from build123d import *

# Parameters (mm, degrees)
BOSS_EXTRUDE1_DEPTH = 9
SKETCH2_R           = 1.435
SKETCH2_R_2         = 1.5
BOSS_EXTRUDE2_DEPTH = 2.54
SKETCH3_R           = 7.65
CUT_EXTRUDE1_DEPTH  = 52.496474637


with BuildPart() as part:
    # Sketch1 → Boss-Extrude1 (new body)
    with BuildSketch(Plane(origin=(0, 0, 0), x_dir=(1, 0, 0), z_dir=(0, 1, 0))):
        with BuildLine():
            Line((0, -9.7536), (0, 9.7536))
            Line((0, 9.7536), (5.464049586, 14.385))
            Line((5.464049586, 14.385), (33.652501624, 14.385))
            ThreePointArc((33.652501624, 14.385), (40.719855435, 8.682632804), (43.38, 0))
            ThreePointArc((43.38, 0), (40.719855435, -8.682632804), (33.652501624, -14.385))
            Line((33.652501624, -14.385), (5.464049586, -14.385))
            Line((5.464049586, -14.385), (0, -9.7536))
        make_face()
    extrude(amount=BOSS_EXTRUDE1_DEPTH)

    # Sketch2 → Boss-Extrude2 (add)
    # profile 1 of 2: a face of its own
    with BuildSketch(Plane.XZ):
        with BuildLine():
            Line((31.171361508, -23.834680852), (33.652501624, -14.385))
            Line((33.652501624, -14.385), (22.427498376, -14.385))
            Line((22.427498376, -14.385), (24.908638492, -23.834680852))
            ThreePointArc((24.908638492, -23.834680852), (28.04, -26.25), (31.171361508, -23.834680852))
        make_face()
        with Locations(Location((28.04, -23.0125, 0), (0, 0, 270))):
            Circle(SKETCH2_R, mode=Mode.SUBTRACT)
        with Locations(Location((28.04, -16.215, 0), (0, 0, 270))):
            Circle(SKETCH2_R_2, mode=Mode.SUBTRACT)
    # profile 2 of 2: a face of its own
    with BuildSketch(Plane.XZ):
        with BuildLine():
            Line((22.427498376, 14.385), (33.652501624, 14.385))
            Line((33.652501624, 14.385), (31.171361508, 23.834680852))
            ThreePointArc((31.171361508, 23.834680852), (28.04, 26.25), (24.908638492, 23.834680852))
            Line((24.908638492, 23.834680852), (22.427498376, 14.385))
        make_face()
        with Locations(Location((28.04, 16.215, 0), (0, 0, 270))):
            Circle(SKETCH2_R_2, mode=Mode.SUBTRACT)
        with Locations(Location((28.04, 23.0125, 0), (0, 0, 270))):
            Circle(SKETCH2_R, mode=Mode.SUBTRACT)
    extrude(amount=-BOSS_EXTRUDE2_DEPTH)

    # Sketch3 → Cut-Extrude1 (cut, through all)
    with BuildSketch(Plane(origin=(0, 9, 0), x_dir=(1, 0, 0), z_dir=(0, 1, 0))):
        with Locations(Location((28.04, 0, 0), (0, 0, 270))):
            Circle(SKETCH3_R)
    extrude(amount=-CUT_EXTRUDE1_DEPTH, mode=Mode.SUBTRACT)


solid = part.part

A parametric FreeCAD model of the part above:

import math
import FreeCAD as App
import Part
import Sketcher
from FreeCAD import Vector
Q = App.Units.Quantity

doc = App.newDocument("Part")
body = doc.addObject("PartDesign::Body", "Body")

# Sketch on XZ plane
sketch1 = body.newObject("Sketcher::SketchObject", "Sketch")
sketch1.AttachmentSupport = (doc.getObject("XZ_Plane"), [""])
sketch1.MapMode = "FlatFace"
sketch1.addGeometry(Part.LineSegment(Vector(0, -10, 0), Vector(0, 10, 0)), False)
sketch1.addGeometry(Part.LineSegment(Vector(0, 10, 0), Vector(5, 14, 0)), False)
sketch1.addGeometry(Part.LineSegment(Vector(5, 14, 0), Vector(34, 14, 0)), False)
sketch1.addGeometry(Part.ArcOfCircle(Part.Circle(Vector(28, 0, 0), Vector(0, 0, 1), 16), math.radians(0), math.radians(68)), False)
sketch1.addGeometry(Part.ArcOfCircle(Part.Circle(Vector(28, 0, 0), Vector(0, 0, 1), 16), math.radians(-68), math.radians(0)), False)
sketch1.addGeometry(Part.LineSegment(Vector(34, -14, 0), Vector(5, -14, 0)), False)
sketch1.addGeometry(Part.LineSegment(Vector(5, -14, 0), Vector(0, -10, 0)), False)
sketch1.addConstraint(Sketcher.Constraint("Coincident", 0, 2, 1, 1))
sketch1.addConstraint(Sketcher.Constraint("Coincident", 1, 2, 2, 1))
sketch1.addConstraint(Sketcher.Constraint("Coincident", 2, 2, 3, 2))
sketch1.addConstraint(Sketcher.Constraint("Tangent", 3, 1, 4, 2))
sketch1.addConstraint(Sketcher.Constraint("Coincident", 4, 1, 5, 1))
sketch1.addConstraint(Sketcher.Constraint("Coincident", 5, 2, 6, 1))
sketch1.addConstraint(Sketcher.Constraint("Coincident", 6, 2, 0, 1))
sketch1.addConstraint(Sketcher.Constraint("Vertical", 0))
sketch1.addConstraint(Sketcher.Constraint("Horizontal", 2))
sketch1.addConstraint(Sketcher.Constraint("Horizontal", 5))
sketch1.addConstraint(Sketcher.Constraint("Equal", 3, 4))
sketch1.addConstraint(Sketcher.Constraint("Symmetric", 0, 2, 6, 2, -1, 1))
sketch1.addConstraint(Sketcher.Constraint("Symmetric", 2, 2, 4, 1, -1))
sketch1.addConstraint(Sketcher.Constraint("PointOnObject", 3, 1, -1))
sketch1.addConstraint(Sketcher.Constraint("Vertical", 1, 2, 5, 2))
sketch1.addConstraint(Sketcher.Constraint("Radius", 3, Q("15.5 mm")))
sketch1.addConstraint(Sketcher.Constraint("DistanceX", -1, 1, 3, 3, Q("27.88 mm")))
sketch1.addConstraint(Sketcher.Constraint("DistanceY", 4, 1, 2, 2, Q("28.77 mm")))
sketch1.addConstraint(Sketcher.Constraint("DistanceY", 0, 1, 0, 2, Q("19.5072 mm")))
sketch1.addConstraint(Sketcher.Constraint("Distance", 1, Q("7.1628 mm")))
pad1 = body.newObject("PartDesign::Pad", "Pad")
pad1.Profile = sketch1
pad1.Length = 9
pad1.Reversed = True

# Sketch on XZ plane
sketch2 = body.newObject("Sketcher::SketchObject", "Sketch001")
sketch2.AttachmentSupport = (doc.getObject("XZ_Plane"), [""])
sketch2.MapMode = "FlatFace"
sketch2.addGeometry(Part.LineSegment(Vector(31.2, -23.8, 0), Vector(33.7, -14.4, 0)), False)
sketch2.addGeometry(Part.LineSegment(Vector(33.7, -14.4, 0), Vector(22.4, -14.4, 0)), False)
sketch2.addGeometry(Part.LineSegment(Vector(22.4, -14.4, 0), Vector(24.9, -23.8, 0)), False)
sketch2.addGeometry(Part.ArcOfCircle(Part.Circle(Vector(28, -23, 0), Vector(0, 0, 1), 3.2), math.radians(-165), math.radians(-15)), False)
sketch2.addGeometry(Part.Circle(Vector(28, -23, 0), Vector(0, 0, 1), 1.4), False)
sketch2.addGeometry(Part.Circle(Vector(28, -16.2, 0), Vector(0, 0, 1), 1.5), False)
sketch2.addGeometry(Part.LineSegment(Vector(22.4, 14.4, 0), Vector(33.7, 14.4, 0)), False)
sketch2.addGeometry(Part.LineSegment(Vector(33.7, 14.4, 0), Vector(31.2, 23.8, 0)), False)
sketch2.addGeometry(Part.ArcOfCircle(Part.Circle(Vector(28, 23, 0), Vector(0, 0, 1), 3.2), math.radians(15), math.radians(165)), False)
sketch2.addGeometry(Part.LineSegment(Vector(24.9, 23.8, 0), Vector(22.4, 14.4, 0)), False)
sketch2.addGeometry(Part.Circle(Vector(28, 16.2, 0), Vector(0, 0, 1), 1.5), False)
sketch2.addGeometry(Part.Circle(Vector(28, 23, 0), Vector(0, 0, 1), 1.4), False)
sketch2.addConstraint(Sketcher.Constraint("Coincident", 0, 2, 1, 1))
sketch2.addConstraint(Sketcher.Constraint("Coincident", 1, 2, 2, 1))
sketch2.addConstraint(Sketcher.Constraint("Tangent", 2, 2, 3, 1))
sketch2.addConstraint(Sketcher.Constraint("Tangent", 3, 2, 0, 1))
sketch2.addConstraint(Sketcher.Constraint("Coincident", 6, 2, 7, 1))
sketch2.addConstraint(Sketcher.Constraint("Tangent", 7, 2, 8, 1))
sketch2.addConstraint(Sketcher.Constraint("Tangent", 8, 2, 9, 1))
sketch2.addConstraint(Sketcher.Constraint("Coincident", 9, 2, 6, 1))
sketch2.addConstraint(Sketcher.Constraint("Horizontal", 1))
sketch2.addConstraint(Sketcher.Constraint("Horizontal", 6))
sketch2.addConstraint(Sketcher.Constraint("Coincident", 4, 3, 3, 3))
sketch2.addConstraint(Sketcher.Constraint("Coincident", 11, 3, 8, 3))
sketch2.addConstraint(Sketcher.Constraint("Equal", 3, 8))
sketch2.addConstraint(Sketcher.Constraint("Equal", 5, 10))
sketch2.addConstraint(Sketcher.Constraint("Equal", 4, 11))
sketch2.addConstraint(Sketcher.Constraint("Symmetric", 3, 3, 8, 3, -1))
sketch2.addConstraint(Sketcher.Constraint("Symmetric", 5, 3, 10, 3, -1))
sketch2.addConstraint(Sketcher.Constraint("Symmetric", 0, 2, 6, 2, -1))
sketch2.addConstraint(Sketcher.Constraint("Parallel", 2, 7))
sketch2.addConstraint(Sketcher.Constraint("Parallel", 0, 9))
sketch2.addConstraint(Sketcher.Constraint("Vertical", 4, 3, 5, 3))
sketch2.addConstraint(Sketcher.Constraint("Diameter", 5, Q("3 mm")))
sketch2.addConstraint(Sketcher.Constraint("Diameter", 4, Q("2.87 mm")))
sketch2.addConstraint(Sketcher.Constraint("Radius", 3, Q("3.2375 mm")))
sketch2.addConstraint(Sketcher.Constraint("DistanceY", 0, 2, 10, 3, Q("30.6 mm")))
sketch2.addConstraint(Sketcher.Constraint("DistanceX", -1, 1, 3, 3, Q("28.04 mm")))
sketch2.addConstraint(Sketcher.Constraint("DistanceY", 5, 3, 10, 3, Q("32.43 mm")))
sketch2.addConstraint(Sketcher.Constraint("DistanceY", 4, 3, 8, 3, Q("46.025 mm")))
sketch2.addConstraint(Sketcher.Constraint("DistanceX", -1, 1, 0, 2, Q("33.652502 mm")))
pad2 = body.newObject("PartDesign::Pad", "Pad001")
pad2.Profile = sketch2
pad2.Length = 2.54
pad2.Reversed = True

# Sketch on XZ plane
sketch3 = body.newObject("Sketcher::SketchObject", "Sketch002")
sketch3.AttachmentSupport = (doc.getObject("XZ_Plane"), [""])
sketch3.MapMode = "FlatFace"
sketch3.AttachmentOffset = App.Placement(Vector(0, 0, -9), App.Rotation())
sketch3.addGeometry(Part.Circle(Vector(28, 0, 0), Vector(0, 0, 1), 8), False)
sketch3.addConstraint(Sketcher.Constraint("PointOnObject", 0, 3, -1))
sketch3.addConstraint(Sketcher.Constraint("Diameter", 0, Q("15.3 mm")))
sketch3.addConstraint(Sketcher.Constraint("DistanceX", -1, 1, 0, 3, Q("28.04 mm")))
pocket1 = body.newObject("PartDesign::Pocket", "Pocket")
pocket1.Profile = sketch3
pocket1.Type = "ThroughAll"
pocket1.Reversed = True

doc.recompute()
